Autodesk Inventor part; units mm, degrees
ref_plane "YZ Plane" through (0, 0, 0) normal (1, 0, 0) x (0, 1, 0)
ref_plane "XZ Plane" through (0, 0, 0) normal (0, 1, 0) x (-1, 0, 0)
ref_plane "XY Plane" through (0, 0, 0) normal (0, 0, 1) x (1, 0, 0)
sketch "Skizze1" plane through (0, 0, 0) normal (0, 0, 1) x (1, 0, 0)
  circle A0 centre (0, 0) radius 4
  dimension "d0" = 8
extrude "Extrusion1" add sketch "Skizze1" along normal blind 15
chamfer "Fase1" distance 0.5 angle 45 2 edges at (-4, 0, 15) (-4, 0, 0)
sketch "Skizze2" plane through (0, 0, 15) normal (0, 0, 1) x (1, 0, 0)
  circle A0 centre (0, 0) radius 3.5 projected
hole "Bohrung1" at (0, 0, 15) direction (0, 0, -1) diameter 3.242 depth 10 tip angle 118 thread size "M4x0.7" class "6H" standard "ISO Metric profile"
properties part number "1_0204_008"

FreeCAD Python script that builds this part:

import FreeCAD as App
import Part
import Sketcher
from FreeCAD import Vector
Q = App.Units.Quantity


def edges_at(feature, points):
    """Names of the edges that pass closest to the given points."""
    edges = feature.Shape.Edges
    near = lambda p: min(range(len(edges)), key=lambda i: edges[i].distToShape(Part.Vertex(*p))[0])
    return sorted({f"Edge{near(p) + 1}" for p in points})

doc = App.newDocument("Part")
params = doc.addObject("Spreadsheet::Sheet", "Params")
for row, (alias, value) in enumerate([
    ("sketch1_diameter", "8 mm"),
    ("pad1_length", "15 mm"),
    ("chamfer_size", "0.5 mm"),
    ("hole_diameter", "3.242 mm"),
    ("hole_depth", "10 mm"),
], start=1):
    params.set(f"A{row}", alias)
    params.set(f"B{row}", "=" + value)
    params.setAlias(f"B{row}", alias)

body = doc.addObject("PartDesign::Body", "Body")

# Sketch on XY plane
sketch1 = doc.addObject("Sketcher::SketchObject", "Sketch")
body.addObject(sketch1)
sketch1.AttachmentSupport = (doc.XY_Plane, [""])
sketch1.MapMode = "FlatFace"
sketch1.addGeometry(Part.Circle(Vector(0, 0, 0), Vector(0, 0, 1), 4), False)
sketch1.addConstraint([
    Sketcher.Constraint("Coincident", 0, 3, -1, 1),
    Sketcher.Constraint("Diameter", 0, Q("8 mm")),
])
sketch1.setExpression("Constraints[1]", "Params.sketch1_diameter")
pad1 = doc.addObject("PartDesign::Pad", "Pad")
body.addObject(pad1)
pad1.Profile = sketch1
pad1.setExpression("Length", "Params.pad1_length")
doc.recompute()

chamfer = doc.addObject("PartDesign::Chamfer", "Chamfer")
body.addObject(chamfer)
chamfer.Base = (pad1, edges_at(pad1, [(-4, 0, 15), (-4, 0, 0)]))
chamfer.setExpression("Size", "Params.chamfer_size")

# Sketch on XY plane
sketch2 = doc.addObject("Sketcher::SketchObject", "Sketch001")
body.addObject(sketch2)
sketch2.AttachmentSupport = (doc.XY_Plane, [""])
sketch2.MapMode = "FlatFace"
sketch2.AttachmentOffset = App.Placement(Vector(0, 0, 15), App.Rotation())
sketch2.addGeometry(Part.Circle(Vector(0, 0, 0), Vector(0, 0, 1), 1.6), False)
sketch2.addConstraint([
    Sketcher.Constraint("Coincident", 0, 3, -1, 1),
    Sketcher.Constraint("Diameter", 0, Q("3.242 mm")),
])
doc.recompute()
hole = doc.addObject("PartDesign::Hole", "Hole")
body.addObject(hole)
hole.Profile = sketch2
hole.ThreadType = "None"
hole.setExpression("Diameter", "Params.hole_diameter")
hole.DepthType = "Dimension"
hole.setExpression("Depth", "Params.hole_depth")
hole.DrillPoint = "Angled"
hole.DrillPointAngle = 118

doc.recompute()
